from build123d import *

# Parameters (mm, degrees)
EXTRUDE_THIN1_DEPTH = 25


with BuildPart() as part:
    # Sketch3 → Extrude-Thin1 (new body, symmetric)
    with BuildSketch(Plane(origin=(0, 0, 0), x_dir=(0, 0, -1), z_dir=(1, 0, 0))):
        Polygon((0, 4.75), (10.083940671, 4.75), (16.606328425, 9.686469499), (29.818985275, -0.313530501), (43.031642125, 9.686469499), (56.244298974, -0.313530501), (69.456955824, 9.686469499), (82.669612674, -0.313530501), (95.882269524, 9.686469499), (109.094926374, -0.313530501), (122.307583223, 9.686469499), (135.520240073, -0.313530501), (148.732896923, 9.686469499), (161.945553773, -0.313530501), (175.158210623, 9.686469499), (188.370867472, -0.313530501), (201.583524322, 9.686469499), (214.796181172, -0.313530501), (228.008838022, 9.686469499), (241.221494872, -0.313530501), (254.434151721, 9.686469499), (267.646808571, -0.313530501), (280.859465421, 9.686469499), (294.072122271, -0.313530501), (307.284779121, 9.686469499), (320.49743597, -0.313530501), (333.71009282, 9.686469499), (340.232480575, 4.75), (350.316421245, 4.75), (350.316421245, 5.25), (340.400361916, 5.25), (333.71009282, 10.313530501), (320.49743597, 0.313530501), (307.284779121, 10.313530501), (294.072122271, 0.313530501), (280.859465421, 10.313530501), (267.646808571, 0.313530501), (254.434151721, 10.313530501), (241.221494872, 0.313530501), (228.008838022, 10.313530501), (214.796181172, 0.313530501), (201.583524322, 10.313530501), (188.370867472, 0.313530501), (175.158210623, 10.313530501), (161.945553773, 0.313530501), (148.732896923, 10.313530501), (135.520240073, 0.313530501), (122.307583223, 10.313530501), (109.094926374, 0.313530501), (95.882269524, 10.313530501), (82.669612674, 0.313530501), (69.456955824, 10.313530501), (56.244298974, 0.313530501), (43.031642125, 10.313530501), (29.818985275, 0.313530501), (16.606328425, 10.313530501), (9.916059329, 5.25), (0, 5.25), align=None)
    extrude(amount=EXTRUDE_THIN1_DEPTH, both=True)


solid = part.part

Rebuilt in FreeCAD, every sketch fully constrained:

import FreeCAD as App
import Part
import Sketcher
from FreeCAD import Vector
Q = App.Units.Quantity

doc = App.newDocument("Part")
params = doc.addObject("Spreadsheet::Sheet", "Params")
for row, (alias, value) in enumerate([
    ("sketch1_width", "0.5 mm"),
    ("pad1_length", "50 mm"),
], start=1):
    params.set(f"A{row}", alias)
    params.set(f"B{row}", "=" + value)
    params.setAlias(f"B{row}", alias)

body = doc.addObject("PartDesign::Body", "Body")

sketch1 = body.newObject("Sketcher::SketchObject", "Sketch")
sketch1.AttachmentSupport = (doc.getObject("YZ_Plane"), [""])
sketch1.MapMode = "FlatFace"
sketch1.addGeometry(Part.LineSegment(Vector(4.8, 0, 0), Vector(4.8, -10.1, 0)), False)
sketch1.addGeometry(Part.LineSegment(Vector(4.8, -10.1, 0), Vector(9.7, -16.6, 0)), False)
sketch1.addGeometry(Part.LineSegment(Vector(9.7, -16.6, 0), Vector(-0.3, -29.8, 0)), False)
sketch1.addGeometry(Part.LineSegment(Vector(-0.3, -29.8, 0), Vector(9.7, -43, 0)), False)
sketch1.addGeometry(Part.LineSegment(Vector(9.7, -43, 0), Vector(-0.3, -56.2, 0)), False)
sketch1.addGeometry(Part.LineSegment(Vector(-0.3, -56.2, 0), Vector(9.7, -69.5, 0)), False)
sketch1.addGeometry(Part.LineSegment(Vector(9.7, -69.5, 0), Vector(-0.3, -82.7, 0)), False)
sketch1.addGeometry(Part.LineSegment(Vector(-0.3, -82.7, 0), Vector(9.7, -95.9, 0)), False)
sketch1.addGeometry(Part.LineSegment(Vector(9.7, -95.9, 0), Vector(-0.3, -109.1, 0)), False)
sketch1.addGeometry(Part.LineSegment(Vector(-0.3, -109.1, 0), Vector(9.7, -122.3, 0)), False)
sketch1.addGeometry(Part.LineSegment(Vector(9.7, -122.3, 0), Vector(-0.3, -135.5, 0)), False)
sketch1.addGeometry(Part.LineSegment(Vector(-0.3, -135.5, 0), Vector(9.7, -148.7, 0)), False)
sketch1.addGeometry(Part.LineSegment(Vector(9.7, -148.7, 0), Vector(-0.3, -161.9, 0)), False)
sketch1.addGeometry(Part.LineSegment(Vector(-0.3, -161.9, 0), Vector(9.7, -175.2, 0)), False)
sketch1.addGeometry(Part.LineSegment(Vector(9.7, -175.2, 0), Vector(-0.3, -188.4, 0)), False)
sketch1.addGeometry(Part.LineSegment(Vector(-0.3, -188.4, 0), Vector(9.7, -201.6, 0)), False)
sketch1.addGeometry(Part.LineSegment(Vector(9.7, -201.6, 0), Vector(-0.3, -214.8, 0)), False)
sketch1.addGeometry(Part.LineSegment(Vector(-0.3, -214.8, 0), Vector(9.7, -228, 0)), False)
sketch1.addGeometry(Part.LineSegment(Vector(9.7, -228, 0), Vector(-0.3, -241.2, 0)), False)
sketch1.addGeometry(Part.LineSegment(Vector(-0.3, -241.2, 0), Vector(9.7, -254.4, 0)), False)
sketch1.addGeometry(Part.LineSegment(Vector(9.7, -254.4, 0), Vector(-0.3, -267.6, 0)), False)
sketch1.addGeometry(Part.LineSegment(Vector(-0.3, -267.6, 0), Vector(9.7, -280.9, 0)), False)
sketch1.addGeometry(Part.LineSegment(Vector(9.7, -280.9, 0), Vector(-0.3, -294.1, 0)), False)
sketch1.addGeometry(Part.LineSegment(Vector(-0.3, -294.1, 0), Vector(9.7, -307.3, 0)), False)
sketch1.addGeometry(Part.LineSegment(Vector(9.7, -307.3, 0), Vector(-0.3, -320.5, 0)), False)
sketch1.addGeometry(Part.LineSegment(Vector(-0.3, -320.5, 0), Vector(9.7, -333.7, 0)), False)
sketch1.addGeometry(Part.LineSegment(Vector(9.7, -333.7, 0), Vector(4.8, -340.2, 0)), False)
sketch1.addGeometry(Part.LineSegment(Vector(4.8, -340.2, 0), Vector(4.8, -350.3, 0)), False)
sketch1.addGeometry(Part.LineSegment(Vector(4.8, -350.3, 0), Vector(5.2, -350.3, 0)), False)
sketch1.addGeometry(Part.LineSegment(Vector(5.2, -350.3, 0), Vector(5.2, -340.4, 0)), False)
sketch1.addGeometry(Part.LineSegment(Vector(5.2, -340.4, 0), Vector(10.3, -333.7, 0)), False)
sketch1.addGeometry(Part.LineSegment(Vector(10.3, -333.7, 0), Vector(0.3, -320.5, 0)), False)
sketch1.addGeometry(Part.LineSegment(Vector(0.3, -320.5, 0), Vector(10.3, -307.3, 0)), False)
sketch1.addGeometry(Part.LineSegment(Vector(10.3, -307.3, 0), Vector(0.3, -294.1, 0)), False)
sketch1.addGeometry(Part.LineSegment(Vector(0.3, -294.1, 0), Vector(10.3, -280.9, 0)), False)
sketch1.addGeometry(Part.LineSegment(Vector(10.3, -280.9, 0), Vector(0.3, -267.6, 0)), False)
sketch1.addGeometry(Part.LineSegment(Vector(0.3, -267.6, 0), Vector(10.3, -254.4, 0)), False)
sketch1.addGeometry(Part.LineSegment(Vector(10.3, -254.4, 0), Vector(0.3, -241.2, 0)), False)
sketch1.addGeometry(Part.LineSegment(Vector(0.3, -241.2, 0), Vector(10.3, -228, 0)), False)
sketch1.addGeometry(Part.LineSegment(Vector(10.3, -228, 0), Vector(0.3, -214.8, 0)), False)
sketch1.addGeometry(Part.LineSegment(Vector(0.3, -214.8, 0), Vector(10.3, -201.6, 0)), False)
sketch1.addGeometry(Part.LineSegment(Vector(10.3, -201.6, 0), Vector(0.3, -188.4, 0)), False)
sketch1.addGeometry(Part.LineSegment(Vector(0.3, -188.4, 0), Vector(10.3, -175.2, 0)), False)
sketch1.addGeometry(Part.LineSegment(Vector(10.3, -175.2, 0), Vector(0.3, -161.9, 0)), False)
sketch1.addGeometry(Part.LineSegment(Vector(0.3, -161.9, 0), Vector(10.3, -148.7, 0)), False)
sketch1.addGeometry(Part.LineSegment(Vector(10.3, -148.7, 0), Vector(0.3, -135.5, 0)), False)
sketch1.addGeometry(Part.LineSegment(Vector(0.3, -135.5, 0), Vector(10.3, -122.3, 0)), False)
sketch1.addGeometry(Part.LineSegment(Vector(10.3, -122.3, 0), Vector(0.3, -109.1, 0)), False)
sketch1.addGeometry(Part.LineSegment(Vector(0.3, -109.1, 0), Vector(10.3, -95.9, 0)), False)
sketch1.addGeometry(Part.LineSegment(Vector(10.3, -95.9, 0), Vector(0.3, -82.7, 0)), False)
sketch1.addGeometry(Part.LineSegment(Vector(0.3, -82.7, 0), Vector(10.3, -69.5, 0)), False)
sketch1.addGeometry(Part.LineSegment(Vector(10.3, -69.5, 0), Vector(0.3, -56.2, 0)), False)
sketch1.addGeometry(Part.LineSegment(Vector(0.3, -56.2, 0), Vector(10.3, -43, 0)), False)
sketch1.addGeometry(Part.LineSegment(Vector(10.3, -43, 0), Vector(0.3, -29.8, 0)), False)
sketch1.addGeometry(Part.LineSegment(Vector(0.3, -29.8, 0), Vector(10.3, -16.6, 0)), False)
sketch1.addGeometry(Part.LineSegment(Vector(10.3, -16.6, 0), Vector(5.2, -9.9, 0)), False)
sketch1.addGeometry(Part.LineSegment(Vector(5.2, -9.9, 0), Vector(5.2, 0, 0)), False)
sketch1.addGeometry(Part.LineSegment(Vector(5.2, 0, 0), Vector(4.8, 0, 0)), False)
sketch1.addConstraint(Sketcher.Constraint("Coincident", 0, 2, 1, 1))
sketch1.addConstraint(Sketcher.Constraint("Coincident", 1, 2, 2, 1))
sketch1.addConstraint(Sketcher.Constraint("Coincident", 2, 2, 3, 1))
sketch1.addConstraint(Sketcher.Constraint("Coincident", 3, 2, 4, 1))
sketch1.addConstraint(Sketcher.Constraint("Coincident", 4, 2, 5, 1))
sketch1.addConstraint(Sketcher.Constraint("Coincident", 5, 2, 6, 1))
sketch1.addConstraint(Sketcher.Constraint("Coincident", 6, 2, 7, 1))
sketch1.addConstraint(Sketcher.Constraint("Coincident", 7, 2, 8, 1))
sketch1.addConstraint(Sketcher.Constraint("Coincident", 8, 2, 9, 1))
sketch1.addConstraint(Sketcher.Constraint("Coincident", 9, 2, 10, 1))
sketch1.addConstraint(Sketcher.Constraint("Coincident", 10, 2, 11, 1))
sketch1.addConstraint(Sketcher.Constraint("Coincident", 11, 2, 12, 1))
sketch1.addConstraint(Sketcher.Constraint("Coincident", 12, 2, 13, 1))
sketch1.addConstraint(Sketcher.Constraint("Coincident", 13, 2, 14, 1))
sketch1.addConstraint(Sketcher.Constraint("Coincident", 14, 2, 15, 1))
sketch1.addConstraint(Sketcher.Constraint("Coincident", 15, 2, 16, 1))
sketch1.addConstraint(Sketcher.Constraint("Coincident", 16, 2, 17, 1))
sketch1.addConstraint(Sketcher.Constraint("Coincident", 17, 2, 18, 1))
sketch1.addConstraint(Sketcher.Constraint("Coincident", 18, 2, 19, 1))
sketch1.addConstraint(Sketcher.Constraint("Coincident", 19, 2, 20, 1))
sketch1.addConstraint(Sketcher.Constraint("Coincident", 20, 2, 21, 1))
sketch1.addConstraint(Sketcher.Constraint("Coincident", 21, 2, 22, 1))
sketch1.addConstraint(Sketcher.Constraint("Coincident", 22, 2, 23, 1))
sketch1.addConstraint(Sketcher.Constraint("Coincident", 23, 2, 24, 1))
sketch1.addConstraint(Sketcher.Constraint("Coincident", 24, 2, 25, 1))
sketch1.addConstraint(Sketcher.Constraint("Coincident", 25, 2, 26, 1))
sketch1.addConstraint(Sketcher.Constraint("Coincident", 26, 2, 27, 1))
sketch1.addConstraint(Sketcher.Constraint("Coincident", 27, 2, 28, 1))
sketch1.addConstraint(Sketcher.Constraint("Coincident", 28, 2, 29, 1))
sketch1.addConstraint(Sketcher.Constraint("Coincident", 29, 2, 30, 1))
sketch1.addConstraint(Sketcher.Constraint("Coincident", 30, 2, 31, 1))
sketch1.addConstraint(Sketcher.Constraint("Coincident", 31, 2, 32, 1))
sketch1.addConstraint(Sketcher.Constraint("Coincident", 32, 2, 33, 1))
sketch1.addConstraint(Sketcher.Constraint("Coincident", 33, 2, 34, 1))
sketch1.addConstraint(Sketcher.Constraint("Coincident", 34, 2, 35, 1))
sketch1.addConstraint(Sketcher.Constraint("Coincident", 35, 2, 36, 1))
sketch1.addConstraint(Sketcher.Constraint("Coincident", 36, 2, 37, 1))
sketch1.addConstraint(Sketcher.Constraint("Coincident", 37, 2, 38, 1))
sketch1.addConstraint(Sketcher.Constraint("Coincident", 38, 2, 39, 1))
sketch1.addConstraint(Sketcher.Constraint("Coincident", 39, 2, 40, 1))
sketch1.addConstraint(Sketcher.Constraint("Coincident", 40, 2, 41, 1))
sketch1.addConstraint(Sketcher.Constraint("Coincident", 41, 2, 42, 1))
sketch1.addConstraint(Sketcher.Constraint("Coincident", 42, 2, 43, 1))
sketch1.addConstraint(Sketcher.Constraint("Coincident", 43, 2, 44, 1))
sketch1.addConstraint(Sketcher.Constraint("Coincident", 44, 2, 45, 1))
sketch1.addConstraint(Sketcher.Constraint("Coincident", 45, 2, 46, 1))
sketch1.addConstraint(Sketcher.Constraint("Coincident", 46, 2, 47, 1))
sketch1.addConstraint(Sketcher.Constraint("Coincident", 47, 2, 48, 1))
sketch1.addConstraint(Sketcher.Constraint("Coincident", 48, 2, 49, 1))
sketch1.addConstraint(Sketcher.Constraint("Coincident", 49, 2, 50, 1))
sketch1.addConstraint(Sketcher.Constraint("Coincident", 50, 2, 51, 1))
sketch1.addConstraint(Sketcher.Constraint("Coincident", 51, 2, 52, 1))
sketch1.addConstraint(Sketcher.Constraint("Coincident", 52, 2, 53, 1))
sketch1.addConstraint(Sketcher.Constraint("Coincident", 53, 2, 54, 1))
sketch1.addConstraint(Sketcher.Constraint("Coincident", 54, 2, 55, 1))
sketch1.addConstraint(Sketcher.Constraint("Coincident", 55, 2, 56, 1))
sketch1.addConstraint(Sketcher.Constraint("Coincident", 56, 2, 57, 1))
sketch1.addConstraint(Sketcher.Constraint("Coincident", 57, 2, 0, 1))
sketch1.addConstraint(Sketcher.Constraint("Vertical", 0))
sketch1.addConstraint(Sketcher.Constraint("Vertical", 27))
sketch1.addConstraint(Sketcher.Constraint("Horizontal", 28))
sketch1.addConstraint(Sketcher.Constraint("Vertical", 29))
sketch1.addConstraint(Sketcher.Constraint("Vertical", 56))
sketch1.addConstraint(Sketcher.Constraint("Horizontal", 57))
sketch1.addConstraint(Sketcher.Constraint("Symmetric", 24, 2, 31, 2, -2))
sketch1.addConstraint(Sketcher.Constraint("Symmetric", 22, 2, 33, 2, -2))
sketch1.addConstraint(Sketcher.Constraint("Symmetric", 20, 2, 35, 2, -2))
sketch1.addConstraint(Sketcher.Constraint("Symmetric", 18, 2, 37, 2, -2))
sketch1.addConstraint(Sketcher.Constraint("Symmetric", 16, 2, 39, 2, -2))
sketch1.addConstraint(Sketcher.Constraint("Symmetric", 14, 2, 41, 2, -2))
sketch1.addConstraint(Sketcher.Constraint("Symmetric", 12, 2, 43, 2, -2))
sketch1.addConstraint(Sketcher.Constraint("Symmetric", 10, 2, 45, 2, -2))
sketch1.addConstraint(Sketcher.Constraint("Symmetric", 8, 2, 47, 2, -2))
sketch1.addConstraint(Sketcher.Constraint("Symmetric", 6, 2, 49, 2, -2))
sketch1.addConstraint(Sketcher.Constraint("Symmetric", 4, 2, 51, 2, -2))
sketch1.addConstraint(Sketcher.Constraint("Symmetric", 2, 2, 53, 2, -2))
sketch1.addConstraint(Sketcher.Constraint("PointOnObject", 56, 2, -1))
sketch1.addConstraint(Sketcher.Constraint("Parallel", 1, 3))
sketch1.addConstraint(Sketcher.Constraint("Parallel", 2, 4))
sketch1.addConstraint(Sketcher.Constraint("Parallel", 3, 5))
sketch1.addConstraint(Sketcher.Constraint("Parallel", 4, 6))
sketch1.addConstraint(Sketcher.Constraint("Parallel", 5, 7))
sketch1.addConstraint(Sketcher.Constraint("Parallel", 6, 8))
sketch1.addConstraint(Sketcher.Constraint("Parallel", 7, 9))
sketch1.addConstraint(Sketcher.Constraint("Parallel", 8, 10))
sketch1.addConstraint(Sketcher.Constraint("Parallel", 9, 11))
sketch1.addConstraint(Sketcher.Constraint("Parallel", 10, 12))
sketch1.addConstraint(Sketcher.Constraint("Parallel", 11, 13))
sketch1.addConstraint(Sketcher.Constraint("Parallel", 12, 14))
sketch1.addConstraint(Sketcher.Constraint("Parallel", 13, 15))
sketch1.addConstraint(Sketcher.Constraint("Parallel", 14, 16))
sketch1.addConstraint(Sketcher.Constraint("Parallel", 15, 17))
sketch1.addConstraint(Sketcher.Constraint("Parallel", 16, 18))
sketch1.addConstraint(Sketcher.Constraint("Parallel", 17, 19))
sketch1.addConstraint(Sketcher.Constraint("Parallel", 18, 20))
sketch1.addConstraint(Sketcher.Constraint("Parallel", 19, 21))
sketch1.addConstraint(Sketcher.Constraint("Parallel", 20, 22))
sketch1.addConstraint(Sketcher.Constraint("Parallel", 21, 23))
sketch1.addConstraint(Sketcher.Constraint("Parallel", 22, 24))
sketch1.addConstraint(Sketcher.Constraint("Parallel", 23, 25))
sketch1.addConstraint(Sketcher.Constraint("Parallel", 24, 26))
sketch1.addConstraint(Sketcher.Constraint("Parallel", 26, 30))
sketch1.addConstraint(Sketcher.Constraint("Parallel", 25, 31))
sketch1.addConstraint(Sketcher.Constraint("Parallel", 30, 32))
sketch1.addConstraint(Sketcher.Constraint("Parallel", 31, 33))
sketch1.addConstraint(Sketcher.Constraint("Parallel", 32, 34))
sketch1.addConstraint(Sketcher.Constraint("Parallel", 33, 35))
sketch1.addConstraint(Sketcher.Constraint("Parallel", 34, 36))
sketch1.addConstraint(Sketcher.Constraint("Parallel", 35, 37))
sketch1.addConstraint(Sketcher.Constraint("Parallel", 36, 38))
sketch1.addConstraint(Sketcher.Constraint("Parallel", 37, 39))
sketch1.addConstraint(Sketcher.Constraint("Parallel", 38, 40))
sketch1.addConstraint(Sketcher.Constraint("Parallel", 39, 41))
sketch1.addConstraint(Sketcher.Constraint("Parallel", 40, 42))
sketch1.addConstraint(Sketcher.Constraint("Parallel", 41, 43))
sketch1.addConstraint(Sketcher.Constraint("Parallel", 42, 44))
sketch1.addConstraint(Sketcher.Constraint("Parallel", 43, 45))
sketch1.addConstraint(Sketcher.Constraint("Parallel", 44, 46))
sketch1.addConstraint(Sketcher.Constraint("Parallel", 45, 47))
sketch1.addConstraint(Sketcher.Constraint("Parallel", 46, 48))
sketch1.addConstraint(Sketcher.Constraint("Parallel", 47, 49))
sketch1.addConstraint(Sketcher.Constraint("Parallel", 48, 50))
sketch1.addConstraint(Sketcher.Constraint("Parallel", 49, 51))
sketch1.addConstraint(Sketcher.Constraint("Parallel", 50, 52))
sketch1.addConstraint(Sketcher.Constraint("Parallel", 51, 53))
sketch1.addConstraint(Sketcher.Constraint("Parallel", 52, 54))
sketch1.addConstraint(Sketcher.Constraint("Parallel", 53, 55))
sketch1.addConstraint(Sketcher.Constraint("Horizontal", 25, 2, 30, 2))
sketch1.addConstraint(Sketcher.Constraint("Horizontal", 23, 2, 32, 2))
sketch1.addConstraint(Sketcher.Constraint("Horizontal", 21, 2, 34, 2))
sketch1.addConstraint(Sketcher.Constraint("Horizontal", 19, 2, 36, 2))
sketch1.addConstraint(Sketcher.Constraint("Horizontal", 17, 2, 38, 2))
sketch1.addConstraint(Sketcher.Constraint("Horizontal", 15, 2, 40, 2))
sketch1.addConstraint(Sketcher.Constraint("Horizontal", 13, 2, 42, 2))
sketch1.addConstraint(Sketcher.Constraint("Horizontal", 11, 2, 44, 2))
sketch1.addConstraint(Sketcher.Constraint("Horizontal", 9, 2, 46, 2))
sketch1.addConstraint(Sketcher.Constraint("Horizontal", 7, 2, 48, 2))
sketch1.addConstraint(Sketcher.Constraint("Horizontal", 5, 2, 50, 2))
sketch1.addConstraint(Sketcher.Constraint("Horizontal", 3, 2, 52, 2))
sketch1.addConstraint(Sketcher.Constraint("Horizontal", 1, 2, 54, 2))
sketch1.addConstraint(Sketcher.Constraint("Vertical", 1, 2, 3, 2))
sketch1.addConstraint(Sketcher.Constraint("Vertical", 3, 2, 5, 2))
sketch1.addConstraint(Sketcher.Constraint("Vertical", 5, 2, 7, 2))
sketch1.addConstraint(Sketcher.Constraint("Vertical", 7, 2, 9, 2))
sketch1.addConstraint(Sketcher.Constraint("Vertical", 9, 2, 11, 2))
sketch1.addConstraint(Sketcher.Constraint("Vertical", 11, 2, 13, 2))
sketch1.addConstraint(Sketcher.Constraint("Vertical", 13, 2, 15, 2))
sketch1.addConstraint(Sketcher.Constraint("Vertical", 15, 2, 17, 2))
sketch1.addConstraint(Sketcher.Constraint("Vertical", 17, 2, 19, 2))
sketch1.addConstraint(Sketcher.Constraint("Vertical", 19, 2, 21, 2))
sketch1.addConstraint(Sketcher.Constraint("Vertical", 21, 2, 23, 2))
sketch1.addConstraint(Sketcher.Constraint("Vertical", 23, 2, 25, 2))
sketch1.addConstraint(Sketcher.Constraint("Vertical", 0, 2, 26, 2))
sketch1.addConstraint(Sketcher.Constraint("Vertical", 29, 2, 55, 2))
sketch1.addConstraint(Sketcher.Constraint("Equal", 0, 27))
sketch1.addConstraint(Sketcher.Constraint("Equal", 29, 56))
sketch1.addConstraint(Sketcher.Constraint("DistanceX", 28, 1, 28, 2, Q("0.5 mm")))
sketch1.addConstraint(Sketcher.Constraint("DistanceX", 2, 2, 1, 2, Q("10 mm")))
sketch1.addConstraint(Sketcher.Constraint("DistanceX", -1, 1, 0, 2, Q("4.75 mm")))
sketch1.addConstraint(Sketcher.Constraint("DistanceY", 0, 2, 0, 1, Q("10.083941 mm")))
sketch1.addConstraint(Sketcher.Constraint("DistanceY", 29, 1, 29, 2, Q("9.916059 mm")))
sketch1.addConstraint(Sketcher.Constraint("DistanceY", 4, 2, -1, 1, Q("56.244299 mm")))
sketch1.setExpression("Constraints[156]", "Params.sketch1_width")
pad1 = body.newObject("PartDesign::Pad", "Pad")
pad1.Profile = sketch1
pad1.setExpression("Length", "Params.pad1_length")
pad1.Midplane = True

doc.recompute()
